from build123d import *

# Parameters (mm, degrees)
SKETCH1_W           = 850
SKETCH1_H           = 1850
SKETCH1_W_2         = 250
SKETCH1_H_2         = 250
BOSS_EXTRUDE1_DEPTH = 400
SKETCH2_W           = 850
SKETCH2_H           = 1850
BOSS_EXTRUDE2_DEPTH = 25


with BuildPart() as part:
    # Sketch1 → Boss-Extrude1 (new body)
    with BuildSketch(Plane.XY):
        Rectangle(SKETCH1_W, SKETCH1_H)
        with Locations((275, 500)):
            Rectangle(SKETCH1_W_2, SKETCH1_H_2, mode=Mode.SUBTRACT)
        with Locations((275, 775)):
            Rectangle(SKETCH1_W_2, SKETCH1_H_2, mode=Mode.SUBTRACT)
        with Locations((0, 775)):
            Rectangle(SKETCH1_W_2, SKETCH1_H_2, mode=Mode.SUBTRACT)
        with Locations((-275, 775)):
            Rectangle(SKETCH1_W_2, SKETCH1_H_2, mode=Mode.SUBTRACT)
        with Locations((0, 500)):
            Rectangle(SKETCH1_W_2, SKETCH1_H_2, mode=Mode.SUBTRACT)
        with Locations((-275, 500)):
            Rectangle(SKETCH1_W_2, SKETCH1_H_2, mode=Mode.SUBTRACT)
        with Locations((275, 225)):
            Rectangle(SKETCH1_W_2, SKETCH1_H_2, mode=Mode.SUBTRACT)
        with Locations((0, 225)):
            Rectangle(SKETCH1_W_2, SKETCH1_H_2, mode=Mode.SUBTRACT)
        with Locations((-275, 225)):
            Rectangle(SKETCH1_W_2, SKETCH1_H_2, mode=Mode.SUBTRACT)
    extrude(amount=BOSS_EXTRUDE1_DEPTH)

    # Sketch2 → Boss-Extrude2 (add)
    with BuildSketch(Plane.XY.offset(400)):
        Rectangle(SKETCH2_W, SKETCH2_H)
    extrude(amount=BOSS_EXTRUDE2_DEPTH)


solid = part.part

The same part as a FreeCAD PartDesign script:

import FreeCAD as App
import Part
import Sketcher
Q = App.Units.Quantity

doc = App.newDocument("Part")
body = doc.addObject("PartDesign::Body", "Body")

# Sketch on XY plane
sketch1 = body.newObject("Sketcher::SketchObject", "Sketch")
sketch1.AttachmentSupport = (doc.getObject("XY_Plane"), [""])
sketch1.MapMode = "FlatFace"
sketch1.addGeometry([
    Part.LineSegment(App.Vector(-425, 925, 0), App.Vector(-425, -925, 0)),  # 0
    Part.LineSegment(App.Vector(-425, -925, 0), App.Vector(425, -925, 0)),  # 1
    Part.LineSegment(App.Vector(425, -925, 0), App.Vector(425, 925, 0)),  # 2
    Part.LineSegment(App.Vector(425, 925, 0), App.Vector(-425, 925, 0)),  # 3
    Part.LineSegment(App.Vector(-150, 100, 0), App.Vector(-400, 100, 0)),  # 4
    Part.LineSegment(App.Vector(-400, 100, 0), App.Vector(-400, 350, 0)),  # 5
    Part.LineSegment(App.Vector(-400, 350, 0), App.Vector(-150, 350, 0)),  # 6
    Part.LineSegment(App.Vector(-150, 350, 0), App.Vector(-150, 100, 0)),  # 7
    Part.LineSegment(App.Vector(125, 100, 0), App.Vector(-125, 100, 0)),  # 8
    Part.LineSegment(App.Vector(-125, 100, 0), App.Vector(-125, 350, 0)),  # 9
    Part.LineSegment(App.Vector(-125, 350, 0), App.Vector(125, 350, 0)),  # 10
    Part.LineSegment(App.Vector(125, 350, 0), App.Vector(125, 100, 0)),  # 11
    Part.LineSegment(App.Vector(400, 100, 0), App.Vector(150, 100, 0)),  # 12
    Part.LineSegment(App.Vector(150, 100, 0), App.Vector(150, 350, 0)),  # 13
    Part.LineSegment(App.Vector(150, 350, 0), App.Vector(400, 350, 0)),  # 14
    Part.LineSegment(App.Vector(400, 350, 0), App.Vector(400, 100, 0)),  # 15
    Part.LineSegment(App.Vector(-150, 375, 0), App.Vector(-400, 375, 0)),  # 16
    Part.LineSegment(App.Vector(-400, 375, 0), App.Vector(-400, 625, 0)),  # 17
    Part.LineSegment(App.Vector(-400, 625, 0), App.Vector(-150, 625, 0)),  # 18
    Part.LineSegment(App.Vector(-150, 625, 0), App.Vector(-150, 375, 0)),  # 19
    Part.LineSegment(App.Vector(-150, 650, 0), App.Vector(-400, 650, 0)),  # 20
    Part.LineSegment(App.Vector(-400, 650, 0), App.Vector(-400, 900, 0)),  # 21
    Part.LineSegment(App.Vector(-400, 900, 0), App.Vector(-150, 900, 0)),  # 22
    Part.LineSegment(App.Vector(-150, 900, 0), App.Vector(-150, 650, 0)),  # 23
    Part.LineSegment(App.Vector(125, 375, 0), App.Vector(-125, 375, 0)),  # 24
    Part.LineSegment(App.Vector(-125, 375, 0), App.Vector(-125, 625, 0)),  # 25
    Part.LineSegment(App.Vector(-125, 625, 0), App.Vector(125, 625, 0)),  # 26
    Part.LineSegment(App.Vector(125, 625, 0), App.Vector(125, 375, 0)),  # 27
    Part.LineSegment(App.Vector(400, 375, 0), App.Vector(150, 375, 0)),  # 28
    Part.LineSegment(App.Vector(150, 375, 0), App.Vector(150, 625, 0)),  # 29
    Part.LineSegment(App.Vector(150, 625, 0), App.Vector(400, 625, 0)),  # 30
    Part.LineSegment(App.Vector(400, 625, 0), App.Vector(400, 375, 0)),  # 31
    Part.LineSegment(App.Vector(125, 650, 0), App.Vector(-125, 650, 0)),  # 32
    Part.LineSegment(App.Vector(-125, 650, 0), App.Vector(-125, 900, 0)),  # 33
    Part.LineSegment(App.Vector(-125, 900, 0), App.Vector(125, 900, 0)),  # 34
    Part.LineSegment(App.Vector(125, 900, 0), App.Vector(125, 650, 0)),  # 35
    Part.LineSegment(App.Vector(400, 650, 0), App.Vector(150, 650, 0)),  # 36
    Part.LineSegment(App.Vector(150, 650, 0), App.Vector(150, 900, 0)),  # 37
    Part.LineSegment(App.Vector(150, 900, 0), App.Vector(400, 900, 0)),  # 38
    Part.LineSegment(App.Vector(400, 900, 0), App.Vector(400, 650, 0)),  # 39
], False)
sketch1.addConstraint([
    Sketcher.Constraint("Coincident", 0, 2, 1, 1),
    Sketcher.Constraint("Coincident", 1, 2, 2, 1),
    Sketcher.Constraint("Coincident", 2, 2, 3, 1),
    Sketcher.Constraint("Coincident", 3, 2, 0, 1),
    Sketcher.Constraint("Coincident", 4, 2, 5, 1),
    Sketcher.Constraint("Coincident", 5, 2, 6, 1),
    Sketcher.Constraint("Coincident", 6, 2, 7, 1),
    Sketcher.Constraint("Coincident", 7, 2, 4, 1),
    Sketcher.Constraint("Coincident", 8, 2, 9, 1),
    Sketcher.Constraint("Coincident", 9, 2, 10, 1),
    Sketcher.Constraint("Coincident", 10, 2, 11, 1),
    Sketcher.Constraint("Coincident", 11, 2, 8, 1),
    Sketcher.Constraint("Coincident", 12, 2, 13, 1),
    Sketcher.Constraint("Coincident", 13, 2, 14, 1),
    Sketcher.Constraint("Coincident", 14, 2, 15, 1),
    Sketcher.Constraint("Coincident", 15, 2, 12, 1),
    Sketcher.Constraint("Coincident", 16, 2, 17, 1),
    Sketcher.Constraint("Coincident", 17, 2, 18, 1),
    Sketcher.Constraint("Coincident", 18, 2, 19, 1),
    Sketcher.Constraint("Coincident", 19, 2, 16, 1),
    Sketcher.Constraint("Coincident", 20, 2, 21, 1),
    Sketcher.Constraint("Coincident", 21, 2, 22, 1),
    Sketcher.Constraint("Coincident", 22, 2, 23, 1),
    Sketcher.Constraint("Coincident", 23, 2, 20, 1),
    Sketcher.Constraint("Coincident", 24, 2, 25, 1),
    Sketcher.Constraint("Coincident", 25, 2, 26, 1),
    Sketcher.Constraint("Coincident", 26, 2, 27, 1),
    Sketcher.Constraint("Coincident", 27, 2, 24, 1),
    Sketcher.Constraint("Coincident", 28, 2, 29, 1),
    Sketcher.Constraint("Coincident", 29, 2, 30, 1),
    Sketcher.Constraint("Coincident", 30, 2, 31, 1),
    Sketcher.Constraint("Coincident", 31, 2, 28, 1),
    Sketcher.Constraint("Coincident", 32, 2, 33, 1),
    Sketcher.Constraint("Coincident", 33, 2, 34, 1),
    Sketcher.Constraint("Coincident", 34, 2, 35, 1),
    Sketcher.Constraint("Coincident", 35, 2, 32, 1),
    Sketcher.Constraint("Coincident", 36, 2, 37, 1),
    Sketcher.Constraint("Coincident", 37, 2, 38, 1),
    Sketcher.Constraint("Coincident", 38, 2, 39, 1),
    Sketcher.Constraint("Coincident", 39, 2, 36, 1),
    Sketcher.Constraint("Vertical", 0),
    Sketcher.Constraint("Horizontal", 1),
    Sketcher.Constraint("Vertical", 2),
    Sketcher.Constraint("Horizontal", 3),
    Sketcher.Constraint("Horizontal", 4),
    Sketcher.Constraint("Vertical", 5),
    Sketcher.Constraint("Horizontal", 6),
    Sketcher.Constraint("Vertical", 7),
    Sketcher.Constraint("Horizontal", 8),
    Sketcher.Constraint("Vertical", 9),
    Sketcher.Constraint("Horizontal", 10),
    Sketcher.Constraint("Vertical", 11),
    Sketcher.Constraint("Horizontal", 12),
    Sketcher.Constraint("Vertical", 13),
    Sketcher.Constraint("Horizontal", 14),
    Sketcher.Constraint("Vertical", 15),
    Sketcher.Constraint("Horizontal", 16),
    Sketcher.Constraint("Vertical", 17),
    Sketcher.Constraint("Horizontal", 18),
    Sketcher.Constraint("Vertical", 19),
    Sketcher.Constraint("Horizontal", 20),
    Sketcher.Constraint("Vertical", 21),
    Sketcher.Constraint("Horizontal", 22),
    Sketcher.Constraint("Vertical", 23),
    Sketcher.Constraint("Horizontal", 24),
    Sketcher.Constraint("Vertical", 25),
    Sketcher.Constraint("Horizontal", 26),
    Sketcher.Constraint("Vertical", 27),
    Sketcher.Constraint("Horizontal", 28),
    Sketcher.Constraint("Vertical", 29),
    Sketcher.Constraint("Horizontal", 30),
    Sketcher.Constraint("Vertical", 31),
    Sketcher.Constraint("Horizontal", 32),
    Sketcher.Constraint("Vertical", 33),
    Sketcher.Constraint("Horizontal", 34),
    Sketcher.Constraint("Vertical", 35),
    Sketcher.Constraint("Horizontal", 36),
    Sketcher.Constraint("Vertical", 37),
    Sketcher.Constraint("Horizontal", 38),
    Sketcher.Constraint("Vertical", 39),
    Sketcher.Constraint("Symmetric", 0, 2, 2, 2, -1, 1),
    Sketcher.Constraint("Symmetric", 7, 2, 12, 2, -2),
    Sketcher.Constraint("Symmetric", 5, 2, 14, 2, -2),
    Sketcher.Constraint("Symmetric", 19, 2, 28, 2, -2),
    Sketcher.Constraint("Symmetric", 17, 2, 30, 2, -2),
    Sketcher.Constraint("Symmetric", 23, 2, 36, 2, -2),
    Sketcher.Constraint("Symmetric", 21, 2, 38, 2, -2),
    Sketcher.Constraint("Horizontal", 7, 2, 8, 2),
    Sketcher.Constraint("Horizontal", 6, 2, 9, 2),
    Sketcher.Constraint("Horizontal", 19, 2, 24, 2),
    Sketcher.Constraint("Horizontal", 18, 2, 25, 2),
    Sketcher.Constraint("Horizontal", 23, 2, 32, 2),
    Sketcher.Constraint("Horizontal", 22, 2, 33, 2),
    Sketcher.Constraint("Vertical", 5, 2, 16, 2),
    Sketcher.Constraint("Vertical", 7, 2, 18, 2),
    Sketcher.Constraint("Vertical", 17, 2, 20, 2),
    Sketcher.Constraint("Vertical", 19, 2, 22, 2),
    Sketcher.Constraint("Vertical", 9, 2, 24, 2),
    Sketcher.Constraint("Vertical", 11, 2, 26, 2),
    Sketcher.Constraint("Vertical", 25, 2, 32, 2),
    Sketcher.Constraint("Vertical", 27, 2, 34, 2),
    Sketcher.Constraint("Equal", 6, 8),
    Sketcher.Constraint("Equal", 38, 5),
    Sketcher.Constraint("Equal", 15, 17),
    Sketcher.Constraint("Equal", 19, 21),
    Sketcher.Constraint("DistanceX", 1, 1, 1, 2, Q("850 mm")),
    Sketcher.Constraint("DistanceX", 4, 2, 4, 1, Q("250 mm")),
    Sketcher.Constraint("DistanceY", 0, 2, 0, 1, Q("1850 mm")),
    Sketcher.Constraint("DistanceX", 4, 2, -1, 1, Q("400 mm")),
    Sketcher.Constraint("DistanceY", -1, 1, 4, 2, Q("100 mm")),
    Sketcher.Constraint("DistanceX", 8, 2, -1, 1, Q("125 mm")),
    Sketcher.Constraint("DistanceY", -1, 1, 16, 2, Q("375 mm")),
    Sketcher.Constraint("DistanceY", -1, 1, 20, 2, Q("650 mm")),
])
pad1 = body.newObject("PartDesign::Pad", "Pad")
pad1.Profile = sketch1
pad1.Length = 400

# Sketch on XY plane
sketch2 = body.newObject("Sketcher::SketchObject", "Sketch001")
sketch2.AttachmentSupport = (doc.getObject("XY_Plane"), [""])
sketch2.MapMode = "FlatFace"
sketch2.AttachmentOffset = App.Placement(App.Vector(0, 0, 400), App.Rotation())
sketch2.addGeometry([
    Part.LineSegment(App.Vector(-425, 925, 0), App.Vector(-425, -925, 0)),
    Part.LineSegment(App.Vector(-425, -925, 0), App.Vector(425, -925, 0)),
    Part.LineSegment(App.Vector(425, -925, 0), App.Vector(425, 925, 0)),
    Part.LineSegment(App.Vector(425, 925, 0), App.Vector(-425, 925, 0)),
], False)
sketch2.addConstraint([
    Sketcher.Constraint("Coincident", 0, 2, 1, 1),
    Sketcher.Constraint("Coincident", 1, 2, 2, 1),
    Sketcher.Constraint("Coincident", 2, 2, 3, 1),
    Sketcher.Constraint("Coincident", 3, 2, 0, 1),
    Sketcher.Constraint("Vertical", 0),
    Sketcher.Constraint("Horizontal", 1),
    Sketcher.Constraint("Vertical", 2),
    Sketcher.Constraint("Horizontal", 3),
    Sketcher.Constraint("Symmetric", 0, 2, 2, 2, -1, 1),
    Sketcher.Constraint("DistanceX", 1, 1, 1, 2, Q("850 mm")),
    Sketcher.Constraint("DistanceY", 0, 2, 0, 1, Q("1850 mm")),
])
pad2 = body.newObject("PartDesign::Pad", "Pad001")
pad2.Profile = sketch2
pad2.Length = 25

doc.recompute()
